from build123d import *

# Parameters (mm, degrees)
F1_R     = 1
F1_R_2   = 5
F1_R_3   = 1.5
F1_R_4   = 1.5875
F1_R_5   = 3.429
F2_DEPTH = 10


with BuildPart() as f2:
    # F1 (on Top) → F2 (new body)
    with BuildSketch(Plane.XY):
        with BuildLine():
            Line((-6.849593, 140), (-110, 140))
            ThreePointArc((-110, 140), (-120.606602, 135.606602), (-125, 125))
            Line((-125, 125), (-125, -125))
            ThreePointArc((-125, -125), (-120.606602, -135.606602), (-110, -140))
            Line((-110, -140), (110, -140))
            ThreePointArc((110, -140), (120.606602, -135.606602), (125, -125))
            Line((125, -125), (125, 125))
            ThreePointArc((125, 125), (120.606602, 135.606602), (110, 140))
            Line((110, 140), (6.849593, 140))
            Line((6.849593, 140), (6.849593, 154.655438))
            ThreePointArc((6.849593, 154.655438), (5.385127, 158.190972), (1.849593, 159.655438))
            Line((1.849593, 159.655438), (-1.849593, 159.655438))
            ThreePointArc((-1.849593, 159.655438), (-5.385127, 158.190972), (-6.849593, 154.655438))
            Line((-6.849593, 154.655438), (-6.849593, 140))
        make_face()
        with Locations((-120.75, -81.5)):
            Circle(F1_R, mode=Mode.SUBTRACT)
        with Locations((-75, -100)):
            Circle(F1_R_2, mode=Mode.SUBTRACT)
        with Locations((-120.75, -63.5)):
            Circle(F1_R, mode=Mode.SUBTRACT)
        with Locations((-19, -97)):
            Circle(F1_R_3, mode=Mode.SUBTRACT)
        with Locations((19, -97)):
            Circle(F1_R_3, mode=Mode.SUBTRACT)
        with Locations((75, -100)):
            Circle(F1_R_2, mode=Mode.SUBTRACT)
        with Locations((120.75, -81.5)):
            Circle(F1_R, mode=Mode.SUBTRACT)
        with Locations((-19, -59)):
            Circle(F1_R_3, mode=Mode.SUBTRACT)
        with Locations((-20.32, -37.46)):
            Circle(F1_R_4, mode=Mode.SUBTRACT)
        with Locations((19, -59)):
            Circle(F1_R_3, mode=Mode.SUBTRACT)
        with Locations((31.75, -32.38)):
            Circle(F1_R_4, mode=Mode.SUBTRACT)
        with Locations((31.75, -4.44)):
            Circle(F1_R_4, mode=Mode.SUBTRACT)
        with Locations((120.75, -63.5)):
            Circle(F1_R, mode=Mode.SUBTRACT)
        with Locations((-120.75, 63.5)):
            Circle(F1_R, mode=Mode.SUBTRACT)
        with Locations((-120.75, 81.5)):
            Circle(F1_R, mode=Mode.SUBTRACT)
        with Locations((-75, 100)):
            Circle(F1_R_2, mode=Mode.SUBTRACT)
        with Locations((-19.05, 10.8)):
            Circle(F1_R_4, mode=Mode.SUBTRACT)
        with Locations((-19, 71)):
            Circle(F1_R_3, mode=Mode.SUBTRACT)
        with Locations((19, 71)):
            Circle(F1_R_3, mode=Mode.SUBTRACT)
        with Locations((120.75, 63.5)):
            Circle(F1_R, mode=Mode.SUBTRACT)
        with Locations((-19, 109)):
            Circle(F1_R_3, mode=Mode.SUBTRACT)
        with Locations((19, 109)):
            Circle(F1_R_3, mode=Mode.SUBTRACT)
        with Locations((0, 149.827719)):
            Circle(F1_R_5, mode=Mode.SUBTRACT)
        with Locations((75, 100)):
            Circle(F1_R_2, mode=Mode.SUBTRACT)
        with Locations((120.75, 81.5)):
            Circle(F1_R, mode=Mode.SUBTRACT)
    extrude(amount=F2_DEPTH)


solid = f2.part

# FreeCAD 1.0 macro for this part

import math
import FreeCAD as App
import Part
import Sketcher

V = App.Vector

doc = App.newDocument("Part")
body = doc.addObject("PartDesign::Body", "Body")

# Sketch on XY plane
sketch1 = body.newObject("Sketcher::SketchObject", "Sketch")
sketch1.AttachmentSupport = (doc.getObject("XY_Plane"), [""])
sketch1.MapMode = "FlatFace"
sketch1.addGeometry([
    Part.LineSegment(V(-6.8, 140, 0), V(-110, 140, 0)),  # 0
    Part.ArcOfCircle(Part.Circle(V(-110, 125, 0), V(0, 0, 1), 15), math.radians(90), math.radians(180)),  # 1
    Part.LineSegment(V(-125, 125, 0), V(-125, -125, 0)),  # 2
    Part.ArcOfCircle(Part.Circle(V(-110, -125, 0), V(0, 0, 1), 15), math.radians(180), math.radians(270)),  # 3
    Part.LineSegment(V(-110, -140, 0), V(110, -140, 0)),  # 4
    Part.ArcOfCircle(Part.Circle(V(110, -125, 0), V(0, 0, 1), 15), math.radians(-90), math.radians(0)),  # 5
    Part.LineSegment(V(125, -125, 0), V(125, 125, 0)),  # 6
    Part.ArcOfCircle(Part.Circle(V(110, 125, 0), V(0, 0, 1), 15), math.radians(0), math.radians(90)),  # 7
    Part.LineSegment(V(110, 140, 0), V(6.8, 140, 0)),  # 8
    Part.LineSegment(V(6.8, 140, 0), V(6.8, 154.7, 0)),  # 9
    Part.ArcOfCircle(Part.Circle(V(1.8, 154.7, 0), V(0, 0, 1), 5), math.radians(0), math.radians(90)),  # 10
    Part.LineSegment(V(1.8, 159.7, 0), V(-1.8, 159.7, 0)),  # 11
    Part.ArcOfCircle(Part.Circle(V(-1.8, 154.7, 0), V(0, 0, 1), 5), math.radians(90), math.radians(180)),  # 12
    Part.LineSegment(V(-6.8, 154.7, 0), V(-6.8, 140, 0)),  # 13
    Part.Circle(V(-120.8, -81.5, 0), V(0, 0, 1), 1),  # 14
    Part.Circle(V(-75, -100, 0), V(0, 0, 1), 5),  # 15
    Part.Circle(V(-120.8, -63.5, 0), V(0, 0, 1), 1),  # 16
    Part.Circle(V(-19, -97, 0), V(0, 0, 1), 1.5),  # 17
    Part.Circle(V(-19, -59, 0), V(0, 0, 1), 1.5),  # 18
    Part.Circle(V(-20.3, -37.5, 0), V(0, 0, 1), 1.6),  # 19
    Part.Circle(V(-19.1, 10.8, 0), V(0, 0, 1), 1.6),  # 20
    Part.Circle(V(19, -97, 0), V(0, 0, 1), 1.5),  # 21
    Part.Circle(V(19, -59, 0), V(0, 0, 1), 1.5),  # 22
    Part.Circle(V(75, -100, 0), V(0, 0, 1), 5),  # 23
    Part.Circle(V(120.8, -81.5, 0), V(0, 0, 1), 1),  # 24
    Part.Circle(V(120.8, -63.5, 0), V(0, 0, 1), 1),  # 25
    Part.Circle(V(31.8, -32.4, 0), V(0, 0, 1), 1.6),  # 26
    Part.Circle(V(31.8, -4.4, 0), V(0, 0, 1), 1.6),  # 27
    Part.Circle(V(-120.8, 63.5, 0), V(0, 0, 1), 1),  # 28
    Part.Circle(V(-120.8, 81.5, 0), V(0, 0, 1), 1),  # 29
    Part.Circle(V(-19, 71, 0), V(0, 0, 1), 1.5),  # 30
    Part.Circle(V(-75, 100, 0), V(0, 0, 1), 5),  # 31
    Part.Circle(V(-19, 109, 0), V(0, 0, 1), 1.5),  # 32
    Part.Circle(V(19, 71, 0), V(0, 0, 1), 1.5),  # 33
    Part.Circle(V(120.8, 63.5, 0), V(0, 0, 1), 1),  # 34
    Part.Circle(V(120.8, 81.5, 0), V(0, 0, 1), 1),  # 35
    Part.Circle(V(19, 109, 0), V(0, 0, 1), 1.5),  # 36
    Part.Circle(V(0, 149.8, 0), V(0, 0, 1), 3.4),  # 37
    Part.Circle(V(75, 100, 0), V(0, 0, 1), 5),  # 38
], False)
sketch1.addConstraint([
    Sketcher.Constraint("Tangent", 0, 2, 1, 1),
    Sketcher.Constraint("Tangent", 1, 2, 2, 1),
    Sketcher.Constraint("Tangent", 2, 2, 3, 1),
    Sketcher.Constraint("Tangent", 3, 2, 4, 1),
    Sketcher.Constraint("Tangent", 4, 2, 5, 1),
    Sketcher.Constraint("Tangent", 5, 2, 6, 1),
    Sketcher.Constraint("Tangent", 6, 2, 7, 1),
    Sketcher.Constraint("Tangent", 7, 2, 8, 1),
    Sketcher.Constraint("Coincident", 8, 2, 9, 1),
    Sketcher.Constraint("Tangent", 9, 2, 10, 1),
    Sketcher.Constraint("Tangent", 10, 2, 11, 1),
    Sketcher.Constraint("Tangent", 11, 2, 12, 1),
    Sketcher.Constraint("Tangent", 12, 2, 13, 1),
    Sketcher.Constraint("Coincident", 13, 2, 0, 1),
    Sketcher.Constraint("Horizontal", 0),
    Sketcher.Constraint("Vertical", 2),
    Sketcher.Constraint("Horizontal", 4),
    Sketcher.Constraint("Vertical", 6),
    Sketcher.Constraint("Horizontal", 8),
    Sketcher.Constraint("Vertical", 9),
    Sketcher.Constraint("Horizontal", 11),
    Sketcher.Constraint("Vertical", 13),
    Sketcher.Constraint("Equal", 1, 3),
    Sketcher.Constraint("Equal", 3, 5),
    Sketcher.Constraint("Equal", 5, 7),
    Sketcher.Constraint("Equal", 10, 12),
    Sketcher.Constraint("Equal", 12, 15),
    Sketcher.Constraint("Equal", 14, 16),
    Sketcher.Constraint("Equal", 17, 18),
    Sketcher.Constraint("Equal", 19, 20),
    Sketcher.Constraint("Equal", 18, 21),
    Sketcher.Constraint("Equal", 21, 22),
    Sketcher.Constraint("Equal", 15, 23),
    Sketcher.Constraint("Equal", 16, 24),
    Sketcher.Constraint("Equal", 24, 25),
    Sketcher.Constraint("Equal", 20, 26),
    Sketcher.Constraint("Equal", 26, 27),
    Sketcher.Constraint("Equal", 25, 28),
    Sketcher.Constraint("Equal", 28, 29),
    Sketcher.Constraint("Equal", 22, 30),
    Sketcher.Constraint("Equal", 23, 31),
    Sketcher.Constraint("Equal", 30, 32),
    Sketcher.Constraint("Equal", 32, 33),
    Sketcher.Constraint("Equal", 29, 34),
    Sketcher.Constraint("Equal", 34, 35),
    Sketcher.Constraint("Equal", 33, 36),
    Sketcher.Constraint("Equal", 31, 38),
    Sketcher.Constraint("Symmetric", 1, 3, 5, 3, -1, 1),
    Sketcher.Constraint("Symmetric", 25, 3, 28, 3, -1, 1),
    Sketcher.Constraint("Symmetric", 24, 3, 29, 3, -1, 1),
    Sketcher.Constraint("Symmetric", 23, 3, 31, 3, -1, 1),
    Sketcher.Constraint("Symmetric", 16, 3, 34, 3, -1, 1),
    Sketcher.Constraint("Symmetric", 14, 3, 35, 3, -1, 1),
    Sketcher.Constraint("Symmetric", 15, 3, 38, 3, -1, 1),
    Sketcher.Constraint("Symmetric", 17, 3, 21, 3, -2),
    Sketcher.Constraint("Symmetric", 18, 3, 22, 3, -2),
    Sketcher.Constraint("Symmetric", 15, 3, 23, 3, -2),
    Sketcher.Constraint("Symmetric", 14, 3, 24, 3, -2),
    Sketcher.Constraint("Symmetric", 16, 3, 25, 3, -2),
    Sketcher.Constraint("Symmetric", 30, 3, 33, 3, -2),
    Sketcher.Constraint("Symmetric", 32, 3, 36, 3, -2),
    Sketcher.Constraint("Symmetric", 8, 2, 13, 2, -2),
    Sketcher.Constraint("PointOnObject", 37, 3, -2),
    Sketcher.Constraint("Vertical", 14, 3, 16, 3),
    Sketcher.Constraint("Vertical", 17, 3, 18, 3),
    Sketcher.Constraint("Vertical", 26, 3, 27, 3),
    Sketcher.Constraint("Vertical", 18, 3, 30, 3),
    Sketcher.Constraint("Vertical", 30, 3, 32, 3),
    Sketcher.Constraint("Diameter", 14, 2.0),
    Sketcher.Constraint("Diameter", 15, 10.0),
    Sketcher.Constraint("Diameter", 17, 3.0),
    Sketcher.Constraint("Radius", 1, 14.999999),
    Sketcher.Constraint("DistanceX", 4, 1, 4, 2, 220.0),
    Sketcher.Constraint("DistanceY", 2, 2, 2, 1, 250.0),
    Sketcher.Constraint("Diameter", 19, 3.175),
    Sketcher.Constraint("Diameter", 37, 6.858),
    Sketcher.Constraint("DistanceX", 15, 3, -1, 1, 75.0),
    Sketcher.Constraint("DistanceY", 15, 3, -1, 1, 100.0),
    Sketcher.Constraint("DistanceX", 17, 3, -1, 1, 19.0),
    Sketcher.Constraint("DistanceY", 17, 3, -1, 1, 97.0),
    Sketcher.Constraint("DistanceY", 18, 3, -1, 1, 59.0),
    Sketcher.Constraint("DistanceY", -1, 1, 30, 3, 71.0),
    Sketcher.Constraint("DistanceY", -1, 1, 32, 3, 109.0),
    Sketcher.Constraint("DistanceY", 14, 3, 16, 3, 18.0),
    Sketcher.Constraint("DistanceY", 16, 3, 28, 3, 127.0),
    Sketcher.Constraint("DistanceX", 27, 3, 34, 3, 89.0),
    Sketcher.Constraint("DistanceY", -1, 1, 20, 3, 10.8),
    Sketcher.Constraint("DistanceX", 16, 3, 20, 3, 101.7),
    Sketcher.Constraint("DistanceX", 20, 3, 26, 3, 50.8),
    Sketcher.Constraint("DistanceX", 19, 3, -1, 1, 20.32),
    Sketcher.Constraint("DistanceY", 19, 3, -1, 1, 37.46),
    Sketcher.Constraint("DistanceY", 26, 3, -1, 1, 32.38),
    Sketcher.Constraint("DistanceY", 27, 3, -1, 1, 4.44),
    Sketcher.Constraint("DistanceY", 9, 1, 9, 2, 14.655438),
    Sketcher.Constraint("DistanceX", 0, 2, 0, 1, 103.150407),
    Sketcher.Constraint("DistanceY", -1, 1, 37, 3, 149.827719),
])
pad1 = body.newObject("PartDesign::Pad", "Pad")
pad1.Profile = sketch1
pad1.Length = 10

doc.recompute()
